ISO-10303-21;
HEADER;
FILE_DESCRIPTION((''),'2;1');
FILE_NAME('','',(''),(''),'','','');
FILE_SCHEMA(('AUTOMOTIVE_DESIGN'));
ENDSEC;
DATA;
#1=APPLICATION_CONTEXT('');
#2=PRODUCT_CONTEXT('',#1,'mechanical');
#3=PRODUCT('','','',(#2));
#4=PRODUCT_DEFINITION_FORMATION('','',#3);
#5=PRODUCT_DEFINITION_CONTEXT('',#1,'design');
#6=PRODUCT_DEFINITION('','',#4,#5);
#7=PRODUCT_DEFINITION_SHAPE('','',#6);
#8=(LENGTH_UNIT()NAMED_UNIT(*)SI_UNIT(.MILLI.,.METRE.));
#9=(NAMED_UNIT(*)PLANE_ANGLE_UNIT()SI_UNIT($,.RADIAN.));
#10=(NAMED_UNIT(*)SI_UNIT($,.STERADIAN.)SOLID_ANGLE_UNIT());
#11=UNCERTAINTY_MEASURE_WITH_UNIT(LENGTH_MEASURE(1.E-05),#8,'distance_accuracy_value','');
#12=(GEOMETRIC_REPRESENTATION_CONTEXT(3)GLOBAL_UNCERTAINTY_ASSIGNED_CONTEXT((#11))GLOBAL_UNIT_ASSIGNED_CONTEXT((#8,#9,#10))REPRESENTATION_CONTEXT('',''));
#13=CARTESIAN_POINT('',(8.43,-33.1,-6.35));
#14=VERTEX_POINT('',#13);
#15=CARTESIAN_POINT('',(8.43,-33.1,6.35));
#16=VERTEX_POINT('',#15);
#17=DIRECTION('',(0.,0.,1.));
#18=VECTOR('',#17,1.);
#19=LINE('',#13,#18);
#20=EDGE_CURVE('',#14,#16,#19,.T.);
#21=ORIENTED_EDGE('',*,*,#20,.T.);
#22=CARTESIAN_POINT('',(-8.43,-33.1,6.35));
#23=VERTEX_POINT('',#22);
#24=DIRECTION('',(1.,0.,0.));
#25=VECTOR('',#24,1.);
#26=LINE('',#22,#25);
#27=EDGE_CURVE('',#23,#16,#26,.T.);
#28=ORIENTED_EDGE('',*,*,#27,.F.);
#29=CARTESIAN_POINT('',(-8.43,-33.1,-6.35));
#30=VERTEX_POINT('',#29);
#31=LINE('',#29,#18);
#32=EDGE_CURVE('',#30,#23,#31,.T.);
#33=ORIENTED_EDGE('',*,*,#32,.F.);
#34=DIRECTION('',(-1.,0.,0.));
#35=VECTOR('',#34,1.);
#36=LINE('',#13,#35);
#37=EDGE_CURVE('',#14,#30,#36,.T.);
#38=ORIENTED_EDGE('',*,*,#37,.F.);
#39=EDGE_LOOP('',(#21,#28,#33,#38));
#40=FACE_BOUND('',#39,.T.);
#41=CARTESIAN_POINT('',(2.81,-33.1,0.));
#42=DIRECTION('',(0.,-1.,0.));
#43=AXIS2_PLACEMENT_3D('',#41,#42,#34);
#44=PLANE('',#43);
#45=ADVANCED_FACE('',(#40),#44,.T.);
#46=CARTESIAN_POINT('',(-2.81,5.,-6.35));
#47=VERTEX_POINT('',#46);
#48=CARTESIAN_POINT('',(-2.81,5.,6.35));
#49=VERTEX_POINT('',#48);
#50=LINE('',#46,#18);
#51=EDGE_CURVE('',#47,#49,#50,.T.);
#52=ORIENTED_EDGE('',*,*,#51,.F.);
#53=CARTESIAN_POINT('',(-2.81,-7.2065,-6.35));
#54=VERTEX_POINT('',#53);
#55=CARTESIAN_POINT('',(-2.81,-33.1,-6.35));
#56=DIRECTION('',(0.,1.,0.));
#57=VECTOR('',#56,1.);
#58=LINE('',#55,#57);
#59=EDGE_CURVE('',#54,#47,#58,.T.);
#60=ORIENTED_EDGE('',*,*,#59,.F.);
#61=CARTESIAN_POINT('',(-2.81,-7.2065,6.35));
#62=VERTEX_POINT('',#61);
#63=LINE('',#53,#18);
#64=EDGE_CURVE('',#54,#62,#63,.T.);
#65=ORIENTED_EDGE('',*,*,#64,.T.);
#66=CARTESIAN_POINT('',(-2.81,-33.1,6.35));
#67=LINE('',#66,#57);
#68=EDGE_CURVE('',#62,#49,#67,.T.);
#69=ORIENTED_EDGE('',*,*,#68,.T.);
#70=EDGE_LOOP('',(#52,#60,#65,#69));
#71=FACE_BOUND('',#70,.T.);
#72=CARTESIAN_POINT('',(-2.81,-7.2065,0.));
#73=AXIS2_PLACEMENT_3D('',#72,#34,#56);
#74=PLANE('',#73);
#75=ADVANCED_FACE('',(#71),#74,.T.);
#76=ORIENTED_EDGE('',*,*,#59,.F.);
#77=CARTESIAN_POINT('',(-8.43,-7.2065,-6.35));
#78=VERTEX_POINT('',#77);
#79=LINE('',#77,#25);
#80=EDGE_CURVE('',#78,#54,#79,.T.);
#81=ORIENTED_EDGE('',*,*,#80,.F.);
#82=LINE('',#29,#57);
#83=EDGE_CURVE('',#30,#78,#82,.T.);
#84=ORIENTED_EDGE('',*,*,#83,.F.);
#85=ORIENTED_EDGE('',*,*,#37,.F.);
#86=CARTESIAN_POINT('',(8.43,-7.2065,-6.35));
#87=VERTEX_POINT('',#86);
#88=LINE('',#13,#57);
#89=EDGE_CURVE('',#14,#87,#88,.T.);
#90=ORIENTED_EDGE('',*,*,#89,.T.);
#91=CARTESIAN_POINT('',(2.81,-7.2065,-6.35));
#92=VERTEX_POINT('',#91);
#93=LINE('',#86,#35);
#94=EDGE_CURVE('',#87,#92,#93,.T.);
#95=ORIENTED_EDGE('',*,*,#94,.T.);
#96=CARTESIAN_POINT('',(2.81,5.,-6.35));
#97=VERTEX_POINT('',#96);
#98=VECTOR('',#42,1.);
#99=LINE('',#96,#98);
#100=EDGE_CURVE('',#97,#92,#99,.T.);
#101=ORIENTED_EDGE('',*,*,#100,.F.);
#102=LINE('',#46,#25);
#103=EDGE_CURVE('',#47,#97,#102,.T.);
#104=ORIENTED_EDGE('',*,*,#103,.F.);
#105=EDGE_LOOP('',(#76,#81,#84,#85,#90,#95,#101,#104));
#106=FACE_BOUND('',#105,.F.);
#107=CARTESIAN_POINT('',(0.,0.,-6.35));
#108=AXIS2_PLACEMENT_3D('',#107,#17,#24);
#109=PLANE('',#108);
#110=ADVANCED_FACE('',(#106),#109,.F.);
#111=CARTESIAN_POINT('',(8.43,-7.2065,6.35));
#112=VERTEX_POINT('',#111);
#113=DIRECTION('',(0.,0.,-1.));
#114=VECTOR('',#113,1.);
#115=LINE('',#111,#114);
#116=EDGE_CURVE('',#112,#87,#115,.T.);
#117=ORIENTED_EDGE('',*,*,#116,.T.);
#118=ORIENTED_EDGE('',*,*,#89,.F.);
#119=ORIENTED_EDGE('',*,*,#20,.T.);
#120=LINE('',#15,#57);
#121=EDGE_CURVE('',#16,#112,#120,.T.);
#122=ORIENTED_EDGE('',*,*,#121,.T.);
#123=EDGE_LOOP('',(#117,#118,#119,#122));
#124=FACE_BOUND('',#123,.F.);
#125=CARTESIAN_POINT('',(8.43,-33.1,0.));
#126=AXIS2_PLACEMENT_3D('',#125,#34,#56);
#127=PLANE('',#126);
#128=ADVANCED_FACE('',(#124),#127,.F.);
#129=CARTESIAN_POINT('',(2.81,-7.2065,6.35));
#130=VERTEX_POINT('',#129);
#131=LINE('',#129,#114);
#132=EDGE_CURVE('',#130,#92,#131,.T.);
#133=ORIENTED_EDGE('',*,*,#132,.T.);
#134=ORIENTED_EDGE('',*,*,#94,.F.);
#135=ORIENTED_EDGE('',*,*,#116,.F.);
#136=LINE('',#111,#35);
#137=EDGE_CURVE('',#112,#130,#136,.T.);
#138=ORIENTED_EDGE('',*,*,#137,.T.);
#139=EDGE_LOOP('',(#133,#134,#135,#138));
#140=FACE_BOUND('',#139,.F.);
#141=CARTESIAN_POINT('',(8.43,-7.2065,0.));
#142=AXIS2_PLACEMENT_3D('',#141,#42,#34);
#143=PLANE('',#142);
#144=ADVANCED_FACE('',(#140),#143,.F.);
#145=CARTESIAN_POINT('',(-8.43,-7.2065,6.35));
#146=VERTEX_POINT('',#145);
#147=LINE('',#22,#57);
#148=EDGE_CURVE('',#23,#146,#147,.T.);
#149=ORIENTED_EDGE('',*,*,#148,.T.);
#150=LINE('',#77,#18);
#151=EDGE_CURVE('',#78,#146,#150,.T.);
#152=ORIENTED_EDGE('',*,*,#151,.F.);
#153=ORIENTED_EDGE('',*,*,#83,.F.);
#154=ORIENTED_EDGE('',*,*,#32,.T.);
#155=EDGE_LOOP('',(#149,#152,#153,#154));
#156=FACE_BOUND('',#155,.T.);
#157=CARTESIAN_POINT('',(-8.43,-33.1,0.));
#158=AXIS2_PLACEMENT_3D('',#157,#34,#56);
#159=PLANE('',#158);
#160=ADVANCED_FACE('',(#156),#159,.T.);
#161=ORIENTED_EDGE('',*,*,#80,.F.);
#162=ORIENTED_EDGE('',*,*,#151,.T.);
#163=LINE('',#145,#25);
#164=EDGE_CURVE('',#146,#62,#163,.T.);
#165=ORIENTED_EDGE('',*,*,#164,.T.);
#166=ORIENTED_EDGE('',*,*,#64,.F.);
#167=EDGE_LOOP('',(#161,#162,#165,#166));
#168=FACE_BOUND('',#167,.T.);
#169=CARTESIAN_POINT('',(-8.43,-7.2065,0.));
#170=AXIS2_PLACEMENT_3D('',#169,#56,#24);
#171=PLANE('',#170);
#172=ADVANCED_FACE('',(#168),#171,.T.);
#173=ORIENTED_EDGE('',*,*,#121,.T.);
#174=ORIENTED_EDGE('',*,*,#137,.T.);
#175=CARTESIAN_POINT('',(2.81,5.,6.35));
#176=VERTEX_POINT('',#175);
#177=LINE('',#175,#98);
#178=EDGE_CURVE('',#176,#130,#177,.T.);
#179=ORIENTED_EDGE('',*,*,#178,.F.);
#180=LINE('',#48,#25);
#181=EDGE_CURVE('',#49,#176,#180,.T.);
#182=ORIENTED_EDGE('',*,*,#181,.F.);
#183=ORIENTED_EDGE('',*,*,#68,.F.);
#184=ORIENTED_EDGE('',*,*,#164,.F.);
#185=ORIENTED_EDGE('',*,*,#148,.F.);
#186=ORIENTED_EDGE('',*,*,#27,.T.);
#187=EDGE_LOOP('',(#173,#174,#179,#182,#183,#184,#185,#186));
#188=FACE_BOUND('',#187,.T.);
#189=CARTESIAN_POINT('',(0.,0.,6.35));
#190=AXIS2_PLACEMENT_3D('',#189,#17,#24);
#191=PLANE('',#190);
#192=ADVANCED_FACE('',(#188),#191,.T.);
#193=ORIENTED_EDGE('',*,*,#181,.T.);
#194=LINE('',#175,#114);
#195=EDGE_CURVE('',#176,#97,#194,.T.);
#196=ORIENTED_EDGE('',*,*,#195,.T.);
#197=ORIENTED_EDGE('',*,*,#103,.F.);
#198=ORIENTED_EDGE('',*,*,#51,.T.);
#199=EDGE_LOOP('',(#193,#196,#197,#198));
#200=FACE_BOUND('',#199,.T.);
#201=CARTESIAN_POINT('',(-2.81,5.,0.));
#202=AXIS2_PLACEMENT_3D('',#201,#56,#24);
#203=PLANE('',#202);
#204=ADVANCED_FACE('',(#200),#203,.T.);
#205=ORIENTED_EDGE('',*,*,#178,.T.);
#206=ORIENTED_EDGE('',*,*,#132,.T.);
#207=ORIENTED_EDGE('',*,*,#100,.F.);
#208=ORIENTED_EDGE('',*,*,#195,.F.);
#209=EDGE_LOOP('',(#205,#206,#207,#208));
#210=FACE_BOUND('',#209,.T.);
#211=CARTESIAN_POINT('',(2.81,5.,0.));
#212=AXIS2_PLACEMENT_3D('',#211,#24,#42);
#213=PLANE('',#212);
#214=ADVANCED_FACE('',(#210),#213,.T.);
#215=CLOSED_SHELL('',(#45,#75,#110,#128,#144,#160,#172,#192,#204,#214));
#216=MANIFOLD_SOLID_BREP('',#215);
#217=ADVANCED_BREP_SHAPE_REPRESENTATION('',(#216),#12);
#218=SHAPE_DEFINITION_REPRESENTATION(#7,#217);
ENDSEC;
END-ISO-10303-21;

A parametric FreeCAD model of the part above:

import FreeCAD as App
import Part
import Sketcher
from FreeCAD import Vector
Q = App.Units.Quantity

doc = App.newDocument("Part")
body = doc.addObject("PartDesign::Body", "Body")

sketch1 = body.newObject("Sketcher::SketchObject", "Sketch")
sketch1.AttachmentSupport = (doc.getObject("XY_Plane"), [""])
sketch1.MapMode = "FlatFace"
sketch1.addGeometry([
    Part.LineSegment(Vector(2.81, 5, 0), Vector(-2.81, 5, 0)),
    Part.LineSegment(Vector(-2.81, 5, 0), Vector(-2.81, -7.2065, 0)),
    Part.LineSegment(Vector(-2.81, -7.2065, 0), Vector(-8.43, -7.2065, 0)),
    Part.LineSegment(Vector(-8.43, -7.2065, 0), Vector(-8.43, -33.1, 0)),
    Part.LineSegment(Vector(-8.43, -33.1, 0), Vector(8.43, -33.1, 0)),
    Part.LineSegment(Vector(8.43, -33.1, 0), Vector(8.43, -7.2065, 0)),
    Part.LineSegment(Vector(8.43, -7.2065, 0), Vector(2.81, -7.2065, 0)),
    Part.LineSegment(Vector(2.81, -7.2065, 0), Vector(2.81, 5, 0)),
], False)
sketch1.addConstraint([
    Sketcher.Constraint("Coincident", 0, 2, 1, 1),
    Sketcher.Constraint("Coincident", 1, 2, 2, 1),
    Sketcher.Constraint("Coincident", 2, 2, 3, 1),
    Sketcher.Constraint("Coincident", 3, 2, 4, 1),
    Sketcher.Constraint("Coincident", 4, 2, 5, 1),
    Sketcher.Constraint("Coincident", 5, 2, 6, 1),
    Sketcher.Constraint("Coincident", 6, 2, 7, 1),
    Sketcher.Constraint("Coincident", 7, 2, 0, 1),
    Sketcher.Constraint("Horizontal", 0),
    Sketcher.Constraint("Vertical", 1),
    Sketcher.Constraint("Horizontal", 2),
    Sketcher.Constraint("Vertical", 3),
    Sketcher.Constraint("Horizontal", 4),
    Sketcher.Constraint("Vertical", 5),
    Sketcher.Constraint("Horizontal", 6),
    Sketcher.Constraint("Vertical", 7),
    Sketcher.Constraint("Symmetric", 2, 2, 5, 2, -2),
    Sketcher.Constraint("Equal", 0, 2),
    Sketcher.Constraint("Equal", 2, 6),
    Sketcher.Constraint("DistanceY", 3, 2, 0, 2, Q("1.5 in")),
    Sketcher.Constraint("DistanceX", 0, 2, 0, 1, Q("5.62 mm")),
    Sketcher.Constraint("DistanceY", 1, 2, 1, 1, Q("12.2065 mm")),
    Sketcher.Constraint("DistanceY", -1, 1, 0, 2, Q("5 mm")),
])
pad1 = body.newObject("PartDesign::Pad", "Pad")
pad1.Profile = sketch1
pad1.Length = Q("0.5 in")
pad1.Midplane = True

doc.recompute()
